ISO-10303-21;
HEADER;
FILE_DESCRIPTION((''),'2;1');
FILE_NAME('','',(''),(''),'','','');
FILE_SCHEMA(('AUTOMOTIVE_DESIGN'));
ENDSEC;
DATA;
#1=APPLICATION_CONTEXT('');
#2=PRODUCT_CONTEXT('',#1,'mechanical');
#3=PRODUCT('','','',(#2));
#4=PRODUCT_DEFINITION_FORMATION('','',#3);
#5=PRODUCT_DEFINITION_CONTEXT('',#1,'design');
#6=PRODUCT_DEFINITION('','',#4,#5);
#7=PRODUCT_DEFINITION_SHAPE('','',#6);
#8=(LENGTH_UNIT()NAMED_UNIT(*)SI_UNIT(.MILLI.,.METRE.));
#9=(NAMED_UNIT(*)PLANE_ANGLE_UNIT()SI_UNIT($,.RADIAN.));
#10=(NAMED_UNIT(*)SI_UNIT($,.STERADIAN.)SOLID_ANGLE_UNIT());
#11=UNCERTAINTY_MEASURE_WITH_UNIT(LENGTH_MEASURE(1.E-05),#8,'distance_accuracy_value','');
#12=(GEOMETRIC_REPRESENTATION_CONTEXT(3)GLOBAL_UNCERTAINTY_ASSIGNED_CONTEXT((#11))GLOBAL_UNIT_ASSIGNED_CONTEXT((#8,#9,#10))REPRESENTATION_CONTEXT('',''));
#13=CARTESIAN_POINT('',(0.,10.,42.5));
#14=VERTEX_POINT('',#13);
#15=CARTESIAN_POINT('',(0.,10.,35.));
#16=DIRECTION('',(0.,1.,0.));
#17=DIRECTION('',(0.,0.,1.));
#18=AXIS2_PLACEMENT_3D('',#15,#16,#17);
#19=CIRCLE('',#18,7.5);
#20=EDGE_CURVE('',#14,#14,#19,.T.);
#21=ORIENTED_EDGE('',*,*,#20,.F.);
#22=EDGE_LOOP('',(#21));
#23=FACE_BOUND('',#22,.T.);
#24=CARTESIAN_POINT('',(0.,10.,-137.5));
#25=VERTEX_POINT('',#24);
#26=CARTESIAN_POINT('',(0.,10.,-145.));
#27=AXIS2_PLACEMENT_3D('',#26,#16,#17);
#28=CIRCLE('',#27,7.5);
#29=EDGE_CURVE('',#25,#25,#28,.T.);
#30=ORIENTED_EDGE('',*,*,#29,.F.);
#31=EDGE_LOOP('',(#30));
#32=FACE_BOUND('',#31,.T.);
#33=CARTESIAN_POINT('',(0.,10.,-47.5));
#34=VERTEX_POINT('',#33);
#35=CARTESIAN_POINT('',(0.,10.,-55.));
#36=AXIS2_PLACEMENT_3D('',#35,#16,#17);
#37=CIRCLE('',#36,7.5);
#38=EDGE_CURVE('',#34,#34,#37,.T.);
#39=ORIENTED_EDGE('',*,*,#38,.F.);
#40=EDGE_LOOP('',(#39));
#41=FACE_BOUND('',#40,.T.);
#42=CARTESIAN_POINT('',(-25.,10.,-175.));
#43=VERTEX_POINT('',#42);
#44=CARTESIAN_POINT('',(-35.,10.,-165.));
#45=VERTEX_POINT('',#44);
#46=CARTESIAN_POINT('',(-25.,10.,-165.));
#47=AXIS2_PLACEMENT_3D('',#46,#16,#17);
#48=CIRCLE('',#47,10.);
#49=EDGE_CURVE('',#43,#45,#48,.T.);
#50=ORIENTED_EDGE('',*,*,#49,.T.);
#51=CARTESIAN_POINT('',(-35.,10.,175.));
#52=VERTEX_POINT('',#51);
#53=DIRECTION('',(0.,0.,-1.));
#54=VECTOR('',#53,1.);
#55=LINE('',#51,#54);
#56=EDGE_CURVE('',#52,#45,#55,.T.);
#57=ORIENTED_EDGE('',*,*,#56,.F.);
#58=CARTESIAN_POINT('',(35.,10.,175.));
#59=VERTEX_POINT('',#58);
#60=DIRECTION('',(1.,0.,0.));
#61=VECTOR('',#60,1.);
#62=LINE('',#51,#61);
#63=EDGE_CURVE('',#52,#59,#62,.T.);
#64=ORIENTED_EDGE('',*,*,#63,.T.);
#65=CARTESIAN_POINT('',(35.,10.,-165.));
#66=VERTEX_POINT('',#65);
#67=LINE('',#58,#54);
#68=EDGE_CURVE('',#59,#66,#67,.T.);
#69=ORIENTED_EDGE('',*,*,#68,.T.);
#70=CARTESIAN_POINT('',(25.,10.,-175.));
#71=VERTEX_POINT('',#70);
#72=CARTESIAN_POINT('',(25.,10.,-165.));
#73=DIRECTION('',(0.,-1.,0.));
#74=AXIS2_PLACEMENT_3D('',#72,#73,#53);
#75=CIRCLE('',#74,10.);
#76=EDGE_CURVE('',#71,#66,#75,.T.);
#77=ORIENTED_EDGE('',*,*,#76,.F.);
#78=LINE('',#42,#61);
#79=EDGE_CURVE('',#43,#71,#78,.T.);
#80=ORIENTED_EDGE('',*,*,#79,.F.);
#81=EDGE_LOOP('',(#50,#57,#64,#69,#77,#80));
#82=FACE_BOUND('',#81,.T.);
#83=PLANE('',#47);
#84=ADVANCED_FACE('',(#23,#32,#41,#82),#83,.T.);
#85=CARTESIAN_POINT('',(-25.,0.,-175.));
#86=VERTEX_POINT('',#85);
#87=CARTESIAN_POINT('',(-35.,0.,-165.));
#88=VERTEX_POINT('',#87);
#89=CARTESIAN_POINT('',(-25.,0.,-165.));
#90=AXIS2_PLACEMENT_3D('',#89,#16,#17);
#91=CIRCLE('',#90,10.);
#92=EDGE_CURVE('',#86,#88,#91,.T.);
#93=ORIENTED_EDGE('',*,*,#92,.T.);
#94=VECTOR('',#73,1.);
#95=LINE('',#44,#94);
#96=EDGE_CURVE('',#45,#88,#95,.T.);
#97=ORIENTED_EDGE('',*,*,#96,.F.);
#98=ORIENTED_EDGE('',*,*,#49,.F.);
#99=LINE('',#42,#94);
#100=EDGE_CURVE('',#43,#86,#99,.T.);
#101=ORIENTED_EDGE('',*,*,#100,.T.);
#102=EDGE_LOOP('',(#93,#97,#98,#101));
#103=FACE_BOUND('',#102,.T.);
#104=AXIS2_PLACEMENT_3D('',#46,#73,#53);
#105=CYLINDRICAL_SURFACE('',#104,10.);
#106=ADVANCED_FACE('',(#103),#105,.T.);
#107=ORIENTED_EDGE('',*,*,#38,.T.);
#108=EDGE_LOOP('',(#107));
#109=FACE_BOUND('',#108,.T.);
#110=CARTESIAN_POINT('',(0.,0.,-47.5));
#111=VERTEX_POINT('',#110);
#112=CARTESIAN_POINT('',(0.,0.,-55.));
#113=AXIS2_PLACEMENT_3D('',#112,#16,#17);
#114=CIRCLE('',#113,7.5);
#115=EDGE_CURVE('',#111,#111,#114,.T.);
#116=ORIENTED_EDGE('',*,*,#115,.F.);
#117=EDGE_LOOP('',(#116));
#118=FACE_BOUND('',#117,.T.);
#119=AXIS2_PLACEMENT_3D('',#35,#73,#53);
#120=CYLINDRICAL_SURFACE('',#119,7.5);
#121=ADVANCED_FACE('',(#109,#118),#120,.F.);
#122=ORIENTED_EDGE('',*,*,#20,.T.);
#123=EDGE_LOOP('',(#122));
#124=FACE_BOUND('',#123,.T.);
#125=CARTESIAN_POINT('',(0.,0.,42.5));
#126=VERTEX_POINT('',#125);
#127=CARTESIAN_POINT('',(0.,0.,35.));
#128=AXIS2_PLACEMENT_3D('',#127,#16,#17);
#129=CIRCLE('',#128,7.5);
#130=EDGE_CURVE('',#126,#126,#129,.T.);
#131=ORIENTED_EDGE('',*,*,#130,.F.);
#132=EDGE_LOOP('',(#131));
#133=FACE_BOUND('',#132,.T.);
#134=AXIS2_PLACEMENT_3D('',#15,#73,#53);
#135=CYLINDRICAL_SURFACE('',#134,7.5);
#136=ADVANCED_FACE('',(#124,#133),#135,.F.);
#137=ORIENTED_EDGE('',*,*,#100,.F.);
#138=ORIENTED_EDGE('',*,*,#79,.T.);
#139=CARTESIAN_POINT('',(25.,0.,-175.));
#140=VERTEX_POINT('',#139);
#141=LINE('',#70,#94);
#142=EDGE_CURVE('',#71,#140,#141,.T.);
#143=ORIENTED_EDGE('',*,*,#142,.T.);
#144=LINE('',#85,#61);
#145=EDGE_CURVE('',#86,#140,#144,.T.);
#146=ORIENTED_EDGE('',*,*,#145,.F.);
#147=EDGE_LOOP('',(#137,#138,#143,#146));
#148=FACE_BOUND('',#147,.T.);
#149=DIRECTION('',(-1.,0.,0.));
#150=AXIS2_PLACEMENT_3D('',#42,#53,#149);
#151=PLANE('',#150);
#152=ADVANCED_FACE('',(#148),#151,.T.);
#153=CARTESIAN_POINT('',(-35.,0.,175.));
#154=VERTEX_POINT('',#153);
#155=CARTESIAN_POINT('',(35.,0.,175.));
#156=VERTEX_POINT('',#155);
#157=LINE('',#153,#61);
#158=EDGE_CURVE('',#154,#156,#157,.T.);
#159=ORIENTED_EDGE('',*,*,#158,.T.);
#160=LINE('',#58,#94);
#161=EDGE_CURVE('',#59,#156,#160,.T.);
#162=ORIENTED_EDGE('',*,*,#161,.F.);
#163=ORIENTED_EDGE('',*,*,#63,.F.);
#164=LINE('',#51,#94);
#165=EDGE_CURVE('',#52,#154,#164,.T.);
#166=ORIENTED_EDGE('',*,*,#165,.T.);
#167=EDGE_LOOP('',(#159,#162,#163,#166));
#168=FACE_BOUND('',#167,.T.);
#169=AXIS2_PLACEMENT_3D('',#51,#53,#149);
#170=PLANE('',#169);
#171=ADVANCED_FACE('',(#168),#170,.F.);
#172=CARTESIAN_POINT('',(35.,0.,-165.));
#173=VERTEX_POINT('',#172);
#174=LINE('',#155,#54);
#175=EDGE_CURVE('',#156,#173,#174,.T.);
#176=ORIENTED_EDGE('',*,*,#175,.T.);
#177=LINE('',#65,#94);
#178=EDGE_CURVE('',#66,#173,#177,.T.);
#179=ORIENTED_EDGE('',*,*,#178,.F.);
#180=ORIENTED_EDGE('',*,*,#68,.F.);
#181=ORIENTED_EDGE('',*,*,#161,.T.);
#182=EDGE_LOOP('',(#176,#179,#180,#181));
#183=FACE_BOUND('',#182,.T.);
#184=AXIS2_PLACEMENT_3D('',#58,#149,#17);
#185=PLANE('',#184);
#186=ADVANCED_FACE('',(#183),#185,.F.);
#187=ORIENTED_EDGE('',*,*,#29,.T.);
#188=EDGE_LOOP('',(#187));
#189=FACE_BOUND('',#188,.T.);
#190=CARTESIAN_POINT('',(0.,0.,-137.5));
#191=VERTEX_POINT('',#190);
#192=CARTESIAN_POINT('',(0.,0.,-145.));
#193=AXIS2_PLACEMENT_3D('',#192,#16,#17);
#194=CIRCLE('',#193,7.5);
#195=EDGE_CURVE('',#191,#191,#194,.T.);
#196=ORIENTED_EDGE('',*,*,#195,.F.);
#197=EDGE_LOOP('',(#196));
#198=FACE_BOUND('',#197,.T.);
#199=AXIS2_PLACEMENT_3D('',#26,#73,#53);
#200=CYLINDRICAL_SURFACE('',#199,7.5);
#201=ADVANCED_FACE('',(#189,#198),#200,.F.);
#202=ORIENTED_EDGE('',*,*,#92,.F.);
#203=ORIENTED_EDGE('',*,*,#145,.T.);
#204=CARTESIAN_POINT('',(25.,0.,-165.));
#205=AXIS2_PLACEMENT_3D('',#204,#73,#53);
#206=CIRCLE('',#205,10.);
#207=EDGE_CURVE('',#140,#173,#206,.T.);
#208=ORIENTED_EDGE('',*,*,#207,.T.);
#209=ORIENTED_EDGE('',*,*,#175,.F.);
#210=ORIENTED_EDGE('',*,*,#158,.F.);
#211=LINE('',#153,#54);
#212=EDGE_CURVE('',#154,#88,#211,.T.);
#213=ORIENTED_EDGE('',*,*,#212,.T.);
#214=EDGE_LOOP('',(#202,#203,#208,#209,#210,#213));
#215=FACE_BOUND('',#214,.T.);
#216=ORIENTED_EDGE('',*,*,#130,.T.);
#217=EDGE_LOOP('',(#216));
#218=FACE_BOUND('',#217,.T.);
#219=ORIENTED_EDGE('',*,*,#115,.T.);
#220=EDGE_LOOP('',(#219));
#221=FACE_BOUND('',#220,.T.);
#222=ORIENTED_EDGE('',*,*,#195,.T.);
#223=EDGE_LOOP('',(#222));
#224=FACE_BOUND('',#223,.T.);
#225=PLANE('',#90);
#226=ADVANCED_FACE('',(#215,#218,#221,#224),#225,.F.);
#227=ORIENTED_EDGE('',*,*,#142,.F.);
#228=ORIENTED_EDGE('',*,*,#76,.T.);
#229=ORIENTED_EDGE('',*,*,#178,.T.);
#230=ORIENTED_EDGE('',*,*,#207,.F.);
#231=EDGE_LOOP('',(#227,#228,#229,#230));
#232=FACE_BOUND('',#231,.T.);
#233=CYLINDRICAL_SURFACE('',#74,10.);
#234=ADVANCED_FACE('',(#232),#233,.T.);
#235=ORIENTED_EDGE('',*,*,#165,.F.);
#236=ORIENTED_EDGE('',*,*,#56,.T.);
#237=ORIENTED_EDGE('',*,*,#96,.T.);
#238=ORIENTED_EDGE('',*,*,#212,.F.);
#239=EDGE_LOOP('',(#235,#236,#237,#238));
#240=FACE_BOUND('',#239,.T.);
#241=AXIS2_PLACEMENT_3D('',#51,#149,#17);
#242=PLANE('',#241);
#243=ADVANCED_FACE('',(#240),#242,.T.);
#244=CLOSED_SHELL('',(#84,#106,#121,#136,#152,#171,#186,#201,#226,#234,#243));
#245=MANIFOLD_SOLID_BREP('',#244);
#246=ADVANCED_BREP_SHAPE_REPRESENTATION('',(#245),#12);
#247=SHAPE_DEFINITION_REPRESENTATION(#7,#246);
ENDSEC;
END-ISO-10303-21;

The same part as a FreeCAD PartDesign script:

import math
import FreeCAD as App
import Part
import Sketcher
from FreeCAD import Vector
Q = App.Units.Quantity

doc = App.newDocument("Part")
body = doc.addObject("PartDesign::Body", "Body")

# Sketch on XZ plane
sketch1 = body.newObject("Sketcher::SketchObject", "Sketch")
sketch1.AttachmentSupport = (doc.getObject("XZ_Plane"), [""])
sketch1.MapMode = "FlatFace"
sketch1.addGeometry(Part.LineSegment(Vector(-35, 175, 0), Vector(35, 175, 0)), False)
sketch1.addGeometry(Part.LineSegment(Vector(35, 175, 0), Vector(35, -165, 0)), False)
sketch1.addGeometry(Part.ArcOfCircle(Part.Circle(Vector(25, -165, 0), Vector(0, 0, 1), 10), math.radians(-90), math.radians(0)), False)
sketch1.addGeometry(Part.LineSegment(Vector(25, -175, 0), Vector(-25, -175, 0)), False)
sketch1.addGeometry(Part.ArcOfCircle(Part.Circle(Vector(-25, -165, 0), Vector(0, 0, 1), 10), math.radians(180), math.radians(270)), False)
sketch1.addGeometry(Part.LineSegment(Vector(-35, -165, 0), Vector(-35, 175, 0)), False)
sketch1.addGeometry(Part.Circle(Vector(0, 35, 0), Vector(0, 0, 1), 7.5), False)
sketch1.addGeometry(Part.Circle(Vector(0, -55, 0), Vector(0, 0, 1), 7.5), False)
sketch1.addGeometry(Part.Circle(Vector(0, -145, 0), Vector(0, 0, 1), 7.5), False)
sketch1.addConstraint(Sketcher.Constraint("Coincident", 0, 2, 1, 1))
sketch1.addConstraint(Sketcher.Constraint("Tangent", 1, 2, 2, 2))
sketch1.addConstraint(Sketcher.Constraint("Tangent", 2, 1, 3, 1))
sketch1.addConstraint(Sketcher.Constraint("Tangent", 3, 2, 4, 2))
sketch1.addConstraint(Sketcher.Constraint("Tangent", 4, 1, 5, 1))
sketch1.addConstraint(Sketcher.Constraint("Coincident", 5, 2, 0, 1))
sketch1.addConstraint(Sketcher.Constraint("Horizontal", 0))
sketch1.addConstraint(Sketcher.Constraint("Vertical", 1))
sketch1.addConstraint(Sketcher.Constraint("Horizontal", 3))
sketch1.addConstraint(Sketcher.Constraint("Vertical", 5))
sketch1.addConstraint(Sketcher.Constraint("Equal", 2, 4))
sketch1.addConstraint(Sketcher.Constraint("Equal", 6, 7))
sketch1.addConstraint(Sketcher.Constraint("Equal", 7, 8))
sketch1.addConstraint(Sketcher.Constraint("PointOnObject", 6, 3, -2))
sketch1.addConstraint(Sketcher.Constraint("PointOnObject", 7, 3, -2))
sketch1.addConstraint(Sketcher.Constraint("PointOnObject", 8, 3, -2))
sketch1.addConstraint(Sketcher.Constraint("Diameter", 6, Q("15 mm")))
sketch1.addConstraint(Sketcher.Constraint("Radius", 2, Q("10 mm")))
sketch1.addConstraint(Sketcher.Constraint("DistanceX", 0, 1, 0, 2, Q("70 mm")))
sketch1.addConstraint(Sketcher.Constraint("DistanceY", 1, 2, 1, 1, Q("340 mm")))
sketch1.addConstraint(Sketcher.Constraint("DistanceX", -1, 1, 2, 3, Q("25 mm")))
sketch1.addConstraint(Sketcher.Constraint("DistanceY", 2, 3, -1, 1, Q("165 mm")))
sketch1.addConstraint(Sketcher.Constraint("DistanceY", -1, 1, 6, 3, Q("35 mm")))
sketch1.addConstraint(Sketcher.Constraint("DistanceY", 7, 3, -1, 1, Q("55 mm")))
sketch1.addConstraint(Sketcher.Constraint("DistanceY", 8, 3, -1, 1, Q("145 mm")))
pad1 = body.newObject("PartDesign::Pad", "Pad")
pad1.Profile = sketch1
pad1.Length = 10
pad1.Reversed = True

doc.recompute()
